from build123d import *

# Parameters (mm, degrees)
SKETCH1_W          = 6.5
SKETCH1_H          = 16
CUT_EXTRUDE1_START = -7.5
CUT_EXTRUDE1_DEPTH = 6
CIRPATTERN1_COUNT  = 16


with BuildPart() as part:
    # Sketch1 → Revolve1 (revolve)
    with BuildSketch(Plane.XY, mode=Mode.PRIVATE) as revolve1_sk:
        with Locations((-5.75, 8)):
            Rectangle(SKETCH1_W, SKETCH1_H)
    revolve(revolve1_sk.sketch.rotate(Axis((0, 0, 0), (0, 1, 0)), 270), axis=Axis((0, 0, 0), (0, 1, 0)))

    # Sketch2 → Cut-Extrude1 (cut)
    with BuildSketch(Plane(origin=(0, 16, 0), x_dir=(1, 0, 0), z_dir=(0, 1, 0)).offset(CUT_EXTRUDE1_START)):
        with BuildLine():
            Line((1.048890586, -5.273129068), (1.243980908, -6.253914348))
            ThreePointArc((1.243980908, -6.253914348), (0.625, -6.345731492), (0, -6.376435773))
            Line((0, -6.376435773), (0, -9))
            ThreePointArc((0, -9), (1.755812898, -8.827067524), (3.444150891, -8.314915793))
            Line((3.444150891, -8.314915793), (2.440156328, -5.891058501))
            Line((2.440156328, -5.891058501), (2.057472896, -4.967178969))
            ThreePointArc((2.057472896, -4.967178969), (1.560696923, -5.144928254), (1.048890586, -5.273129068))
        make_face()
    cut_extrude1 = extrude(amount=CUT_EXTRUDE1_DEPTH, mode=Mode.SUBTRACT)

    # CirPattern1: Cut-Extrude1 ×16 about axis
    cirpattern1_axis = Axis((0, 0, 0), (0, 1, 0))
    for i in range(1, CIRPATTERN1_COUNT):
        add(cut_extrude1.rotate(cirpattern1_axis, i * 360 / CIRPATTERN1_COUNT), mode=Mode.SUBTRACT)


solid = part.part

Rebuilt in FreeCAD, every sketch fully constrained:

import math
import FreeCAD as App
import Part
import Sketcher

V = App.Vector
Q = App.Units.Quantity


def add_polygon(sketch, points):
    """Adds a closed chain of lines whose ends are joined by coincident constraints."""
    first, n = sketch.GeometryCount, len(points)
    for a, b in zip(points, points[1:] + points[:1]):
        sketch.addGeometry(Part.LineSegment(App.Vector(*a, 0), App.Vector(*b, 0)), False)
    for i in range(n):
        sketch.addConstraint(Sketcher.Constraint("Coincident", first + i, 2, first + (i + 1) % n, 1))

doc = App.newDocument("Part")
body = doc.addObject("PartDesign::Body", "Body")

# Sketch on XY plane
sketch1 = body.newObject("Sketcher::SketchObject", "Sketch")
sketch1.AttachmentSupport = (doc.getObject("XY_Plane"), [""])
sketch1.MapMode = "FlatFace"
add_polygon(sketch1, [(-9, 16), (-9, 0), (-2, 0), (-2, 16)])  # lines 0-3
sketch1.addConstraint([
    Sketcher.Constraint("Vertical", 0),
    Sketcher.Constraint("Horizontal", 1),
    Sketcher.Constraint("Vertical", 2),
    Sketcher.Constraint("Horizontal", 3),
    Sketcher.Constraint("PointOnObject", 0, 2, -1),
    Sketcher.Constraint("DistanceY", 0, 2, 0, 1, Q("16 mm")),
    Sketcher.Constraint("DistanceX", 1, 1, 1, 2, Q("6.5 mm")),
    Sketcher.Constraint("DistanceX", 0, 2, -1, 1, Q("9 mm")),
])
revolution = body.newObject("PartDesign::Revolution", "Revolution")
revolution.Profile = sketch1
revolution.ReferenceAxis = (sketch1, ["V_Axis"])
revolution.Angle = 360

# Sketch on XZ plane
sketch2 = body.newObject("Sketcher::SketchObject", "Sketch001")
sketch2.AttachmentSupport = (doc.getObject("XZ_Plane"), [""])
sketch2.MapMode = "FlatFace"
sketch2.AttachmentOffset = App.Placement(V(0, 0, -8.5), App.Rotation())
sketch2.addGeometry([
    Part.LineSegment(V(1, 5.3, 0), V(1.2, 6.3, 0)),  # 0
    Part.ArcOfCircle(Part.Circle(V(0, 0, 0), V(0, 0, 1), 6.4), math.radians(78.75), math.radians(90)),  # 1
    Part.LineSegment(V(0, 6.4, 0), V(0, 9, 0)),  # 2
    Part.ArcOfCircle(Part.Circle(V(0, 0, 0), V(0, 0, 1), 9), math.radians(67), math.radians(90)),  # 3
    Part.LineSegment(V(3.4, 8.3, 0), V(2.4, 5.9, 0)),  # 4
    Part.LineSegment(V(2.4, 5.9, 0), V(2.1, 5, 0)),  # 5
    Part.ArcOfCircle(Part.Circle(V(0, 0, 0), V(0, 0, 1), 5.4), math.radians(67.5), math.radians(78.75)),  # 6
], False)
sketch2.addConstraint([
    Sketcher.Constraint("Coincident", 0, 2, 1, 1),
    Sketcher.Constraint("Coincident", 1, 2, 2, 1),
    Sketcher.Constraint("Coincident", 2, 2, 3, 2),
    Sketcher.Constraint("Coincident", 3, 1, 4, 1),
    Sketcher.Constraint("Coincident", 4, 2, 5, 1),
    Sketcher.Constraint("Coincident", 5, 2, 6, 1),
    Sketcher.Constraint("Coincident", 6, 2, 0, 1),
    Sketcher.Constraint("Vertical", 2),
    Sketcher.Constraint("Coincident", 1, 3, -1, 1),
    Sketcher.Constraint("Coincident", 3, 3, -1, 1),
    Sketcher.Constraint("Coincident", 6, 3, -1, 1),
    Sketcher.Constraint("PointOnObject", 1, 2, -2),
    Sketcher.Constraint("Parallel", 4, 5),
    Sketcher.Constraint("Equal", 0, 5),
    Sketcher.Constraint("Radius", 3, Q("9 mm")),
    Sketcher.Constraint("Distance", 0, Q("1 mm")),
    Sketcher.Constraint("Angle", 4, Q("-112.5 deg")),
    Sketcher.Constraint("Angle", 0, Q("78.75 deg")),
    Sketcher.Constraint("Radius", 1, Q("6.376436 mm")),
    Sketcher.Constraint("DistanceY", 0, 2, 3, 1, Q("2.061001 mm")),
    Sketcher.Constraint("DistanceX", -1, 1, 0, 2, Q("1.243981 mm")),
])
pocket1 = body.newObject("PartDesign::Pocket", "Pocket")
pocket1.Profile = sketch2
pocket1.Length = 6
doc.recompute()

polarpattern = body.newObject("PartDesign::PolarPattern", "PolarPattern")
polarpattern.Originals = [pocket1]
polarpattern.Axis = (doc.getObject("Y_Axis"), [""])
polarpattern.Angle = 360
polarpattern.Occurrences = 16
body.Tip = polarpattern

doc.recompute()
